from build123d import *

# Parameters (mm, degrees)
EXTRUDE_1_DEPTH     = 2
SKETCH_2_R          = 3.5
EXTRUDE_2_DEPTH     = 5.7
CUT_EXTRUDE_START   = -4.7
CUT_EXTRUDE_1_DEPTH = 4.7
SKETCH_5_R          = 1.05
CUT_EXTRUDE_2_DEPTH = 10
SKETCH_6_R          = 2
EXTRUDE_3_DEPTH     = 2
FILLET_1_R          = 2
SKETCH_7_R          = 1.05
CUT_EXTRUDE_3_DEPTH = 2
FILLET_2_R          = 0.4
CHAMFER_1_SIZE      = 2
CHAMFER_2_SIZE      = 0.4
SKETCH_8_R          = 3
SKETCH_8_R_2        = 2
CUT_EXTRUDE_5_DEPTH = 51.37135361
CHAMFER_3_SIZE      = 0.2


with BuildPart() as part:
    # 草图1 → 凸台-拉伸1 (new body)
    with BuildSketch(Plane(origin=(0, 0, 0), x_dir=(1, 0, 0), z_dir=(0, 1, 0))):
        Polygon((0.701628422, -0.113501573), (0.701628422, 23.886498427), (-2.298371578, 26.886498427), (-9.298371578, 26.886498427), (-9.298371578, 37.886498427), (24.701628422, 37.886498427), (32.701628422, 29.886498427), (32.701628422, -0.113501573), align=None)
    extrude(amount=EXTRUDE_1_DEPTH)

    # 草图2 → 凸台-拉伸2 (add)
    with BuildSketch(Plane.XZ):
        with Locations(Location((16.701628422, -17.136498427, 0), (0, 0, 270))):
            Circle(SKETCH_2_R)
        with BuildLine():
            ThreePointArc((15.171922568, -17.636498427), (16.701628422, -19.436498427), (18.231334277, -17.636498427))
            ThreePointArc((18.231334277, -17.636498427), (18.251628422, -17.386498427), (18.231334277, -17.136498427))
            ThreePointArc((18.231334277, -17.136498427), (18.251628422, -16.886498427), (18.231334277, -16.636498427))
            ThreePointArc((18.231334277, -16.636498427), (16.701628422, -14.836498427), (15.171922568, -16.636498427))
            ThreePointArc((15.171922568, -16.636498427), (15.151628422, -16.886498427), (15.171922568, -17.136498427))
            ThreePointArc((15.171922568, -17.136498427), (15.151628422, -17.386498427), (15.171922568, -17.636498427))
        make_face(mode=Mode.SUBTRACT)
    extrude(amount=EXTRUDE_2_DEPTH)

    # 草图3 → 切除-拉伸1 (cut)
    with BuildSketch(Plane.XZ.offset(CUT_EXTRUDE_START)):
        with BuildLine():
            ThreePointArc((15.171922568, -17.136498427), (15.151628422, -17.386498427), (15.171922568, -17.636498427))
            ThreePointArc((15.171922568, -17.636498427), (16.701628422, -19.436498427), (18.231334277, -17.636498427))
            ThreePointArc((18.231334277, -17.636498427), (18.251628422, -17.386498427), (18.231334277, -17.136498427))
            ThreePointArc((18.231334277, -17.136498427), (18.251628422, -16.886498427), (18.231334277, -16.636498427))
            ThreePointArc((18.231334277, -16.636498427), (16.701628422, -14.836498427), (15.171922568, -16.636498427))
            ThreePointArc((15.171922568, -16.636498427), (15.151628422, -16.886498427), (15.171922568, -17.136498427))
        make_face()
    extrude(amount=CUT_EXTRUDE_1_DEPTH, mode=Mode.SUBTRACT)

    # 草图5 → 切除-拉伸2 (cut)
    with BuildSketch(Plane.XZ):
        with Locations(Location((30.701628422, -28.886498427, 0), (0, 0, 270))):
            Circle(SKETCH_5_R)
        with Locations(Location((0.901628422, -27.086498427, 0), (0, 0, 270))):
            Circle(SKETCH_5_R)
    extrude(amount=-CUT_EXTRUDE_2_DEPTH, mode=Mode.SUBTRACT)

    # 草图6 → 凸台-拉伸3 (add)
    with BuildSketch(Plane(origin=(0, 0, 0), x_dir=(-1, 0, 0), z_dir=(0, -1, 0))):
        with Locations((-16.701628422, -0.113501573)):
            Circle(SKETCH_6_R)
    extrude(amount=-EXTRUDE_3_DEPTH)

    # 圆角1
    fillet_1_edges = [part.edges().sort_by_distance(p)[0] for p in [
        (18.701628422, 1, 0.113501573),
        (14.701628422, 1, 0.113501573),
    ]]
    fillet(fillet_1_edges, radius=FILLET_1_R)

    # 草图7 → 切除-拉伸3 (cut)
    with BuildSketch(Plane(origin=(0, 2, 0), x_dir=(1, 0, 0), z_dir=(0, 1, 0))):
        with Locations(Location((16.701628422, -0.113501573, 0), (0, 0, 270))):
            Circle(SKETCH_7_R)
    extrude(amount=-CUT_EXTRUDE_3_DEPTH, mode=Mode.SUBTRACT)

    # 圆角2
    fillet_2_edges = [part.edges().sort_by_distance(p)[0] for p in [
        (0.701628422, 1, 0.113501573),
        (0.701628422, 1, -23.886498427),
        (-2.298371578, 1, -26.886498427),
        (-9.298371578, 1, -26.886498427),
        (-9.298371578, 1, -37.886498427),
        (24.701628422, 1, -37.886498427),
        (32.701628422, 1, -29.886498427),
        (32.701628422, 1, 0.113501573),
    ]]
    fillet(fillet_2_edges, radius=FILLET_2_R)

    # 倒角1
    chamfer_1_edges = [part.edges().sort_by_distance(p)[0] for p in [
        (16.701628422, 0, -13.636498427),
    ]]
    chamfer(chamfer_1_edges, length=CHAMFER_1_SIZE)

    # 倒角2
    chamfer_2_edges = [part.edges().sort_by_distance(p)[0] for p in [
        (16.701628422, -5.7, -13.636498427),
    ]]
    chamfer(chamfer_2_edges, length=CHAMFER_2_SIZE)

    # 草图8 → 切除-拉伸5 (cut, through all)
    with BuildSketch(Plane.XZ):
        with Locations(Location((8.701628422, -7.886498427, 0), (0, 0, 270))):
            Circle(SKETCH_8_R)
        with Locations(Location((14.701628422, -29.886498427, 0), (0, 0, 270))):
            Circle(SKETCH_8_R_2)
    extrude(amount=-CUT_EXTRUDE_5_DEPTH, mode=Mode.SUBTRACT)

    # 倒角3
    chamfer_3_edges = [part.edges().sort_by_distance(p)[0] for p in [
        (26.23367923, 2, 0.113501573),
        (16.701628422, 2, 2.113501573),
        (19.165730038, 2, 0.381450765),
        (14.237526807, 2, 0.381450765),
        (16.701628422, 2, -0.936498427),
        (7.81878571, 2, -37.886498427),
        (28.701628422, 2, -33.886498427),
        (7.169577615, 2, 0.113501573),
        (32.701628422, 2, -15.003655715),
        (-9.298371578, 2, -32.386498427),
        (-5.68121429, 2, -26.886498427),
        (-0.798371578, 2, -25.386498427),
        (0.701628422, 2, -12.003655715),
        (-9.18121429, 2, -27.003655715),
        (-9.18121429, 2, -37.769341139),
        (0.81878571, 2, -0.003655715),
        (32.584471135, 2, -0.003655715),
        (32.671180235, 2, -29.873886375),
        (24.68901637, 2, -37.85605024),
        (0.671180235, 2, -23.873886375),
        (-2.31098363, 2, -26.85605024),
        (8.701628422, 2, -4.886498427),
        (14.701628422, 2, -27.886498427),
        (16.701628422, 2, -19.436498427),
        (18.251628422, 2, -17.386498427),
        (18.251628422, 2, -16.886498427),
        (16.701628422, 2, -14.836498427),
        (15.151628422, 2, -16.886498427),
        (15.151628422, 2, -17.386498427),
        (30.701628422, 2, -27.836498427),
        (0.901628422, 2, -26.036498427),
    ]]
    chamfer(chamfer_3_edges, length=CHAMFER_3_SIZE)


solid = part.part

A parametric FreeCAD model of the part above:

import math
import FreeCAD as App
import Part
import Sketcher
from FreeCAD import Vector
Q = App.Units.Quantity


def edges_at(feature, points):
    """Names of the edges that pass closest to the given points."""
    edges = feature.Shape.Edges
    near = lambda p: min(range(len(edges)), key=lambda i: edges[i].distToShape(Part.Vertex(*p))[0])
    return sorted({f"Edge{near(p) + 1}" for p in points})


def add_polygon(sketch, points):
    """Adds a closed chain of lines whose ends are joined by coincident constraints."""
    first, n = sketch.GeometryCount, len(points)
    for a, b in zip(points, points[1:] + points[:1]):
        sketch.addGeometry(Part.LineSegment(App.Vector(*a, 0), App.Vector(*b, 0)), False)
    for i in range(n):
        sketch.addConstraint(Sketcher.Constraint("Coincident", first + i, 2, first + (i + 1) % n, 1))

doc = App.newDocument("Part")
params = doc.addObject("Spreadsheet::Sheet", "Params")
for row, (alias, value) in enumerate([
    ("sketch1_width", "32 mm"),
    ("sketch1_width2", "34 mm"),
    ("sketch1_width3", "7 mm"),
    ("sketch1_height", "24 mm"),
    ("sketch1_height2", "30 mm"),
    ("pad1_length", "2 mm"),
    ("sketch2_diameter", "7 mm"),
    ("sketch2_radius", "1.55 mm"),
    ("pad2_length", "5.7 mm"),
    ("sketch3_radius", "1.55 mm"),
    ("pocket1_length", "4.7 mm"),
    ("sketch4_diameter", "2.1 mm"),
    ("pocket2_length", "10 mm"),
    ("sketch5_diameter", "4 mm"),
    ("pad3_length", "2 mm"),
    ("fillet_radius", "2 mm"),
    ("sketch6_diameter", "2.1 mm"),
    ("pocket3_length", "2 mm"),
    ("fillet2_radius", "0.4 mm"),
    ("chamfer_size", "2 mm"),
    ("chamfer2_size", "0.4 mm"),
    ("sketch7_diameter", "6 mm"),
    ("sketch7_diameter2", "4 mm"),
    ("chamfer3_size", "0.2 mm"),
], start=1):
    params.set(f"A{row}", alias)
    params.set(f"B{row}", "=" + value)
    params.setAlias(f"B{row}", alias)

body = doc.addObject("PartDesign::Body", "Body")

# Sketch on XZ plane
sketch1 = body.newObject("Sketcher::SketchObject", "Sketch")
sketch1.AttachmentSupport = (doc.getObject("XZ_Plane"), [""])
sketch1.MapMode = "FlatFace"
add_polygon(sketch1, [(0.7, -23.9), (0.7, 0.1), (32.7, 0.1), (32.7, -29.9), (24.7, -37.9), (-9.3, -37.9), (-9.3, -26.9), (-2.3, -26.9)])  # lines 0-7
sketch1.addConstraint(Sketcher.Constraint("Vertical", 0))
sketch1.addConstraint(Sketcher.Constraint("Horizontal", 1))
sketch1.addConstraint(Sketcher.Constraint("Vertical", 2))
sketch1.addConstraint(Sketcher.Constraint("Horizontal", 4))
sketch1.addConstraint(Sketcher.Constraint("Vertical", 5))
sketch1.addConstraint(Sketcher.Constraint("Horizontal", 6))
sketch1.addConstraint(Sketcher.Constraint("Parallel", 3, 7))
sketch1.addConstraint(Sketcher.Constraint("DistanceX", 1, 1, 1, 2, Q("32 mm")))
sketch1.addConstraint(Sketcher.Constraint("DistanceX", 4, 2, 4, 1, Q("34 mm")))
sketch1.addConstraint(Sketcher.Constraint("DistanceX", 6, 1, 6, 2, Q("7 mm")))
sketch1.addConstraint(Sketcher.Constraint("DistanceY", 0, 1, 0, 2, Q("24 mm")))
sketch1.addConstraint(Sketcher.Constraint("DistanceY", 2, 2, 2, 1, Q("30 mm")))
sketch1.addConstraint(Sketcher.Constraint("DistanceY", 5, 1, 5, 2, Q("11 mm")))
sketch1.addConstraint(Sketcher.Constraint("DistanceX", 3, 2, 2, 2, Q("8 mm")))
sketch1.addConstraint(Sketcher.Constraint("DistanceY", -1, 1, 0, 2, Q("0.113502 mm")))
sketch1.addConstraint(Sketcher.Constraint("DistanceX", -1, 1, 0, 2, Q("0.701628 mm")))
sketch1.setExpression("Constraints[15]", "Params.sketch1_width")
sketch1.setExpression("Constraints[16]", "Params.sketch1_width2")
sketch1.setExpression("Constraints[17]", "Params.sketch1_width3")
sketch1.setExpression("Constraints[18]", "Params.sketch1_height")
sketch1.setExpression("Constraints[19]", "Params.sketch1_height2")
pad1 = body.newObject("PartDesign::Pad", "Pad")
pad1.Profile = sketch1
pad1.setExpression("Length", "Params.pad1_length")
pad1.Reversed = True

# Sketch on XZ plane
sketch2 = body.newObject("Sketcher::SketchObject", "Sketch001")
sketch2.AttachmentSupport = (doc.getObject("XZ_Plane"), [""])
sketch2.MapMode = "FlatFace"
sketch2.addGeometry(Part.Circle(Vector(16.7, -17.1, 0), Vector(0, 0, 1), 3.5), False)
sketch2.addGeometry(Part.ArcOfCircle(Part.Circle(Vector(16.7, -17.9, 0), Vector(0, 0, 1), 1.6), math.radians(171), math.radians(369)), False)
sketch2.addGeometry(Part.ArcOfCircle(Part.Circle(Vector(16.7, -17.4, 0), Vector(0, 0, 1), 1.5), math.radians(170.72), math.radians(189.28)), False)
sketch2.addGeometry(Part.ArcOfCircle(Part.Circle(Vector(16.7, -16.9, 0), Vector(0, 0, 1), 1.5), math.radians(170.72), math.radians(189.28)), False)
sketch2.addGeometry(Part.ArcOfCircle(Part.Circle(Vector(16.7, -16.4, 0), Vector(0, 0, 1), 1.6), math.radians(-9), math.radians(189)), False)
sketch2.addGeometry(Part.ArcOfCircle(Part.Circle(Vector(16.7, -16.9, 0), Vector(0, 0, 1), 1.6), math.radians(-9.28), math.radians(9.28)), False)
sketch2.addGeometry(Part.ArcOfCircle(Part.Circle(Vector(16.7, -17.4, 0), Vector(0, 0, 1), 1.6), math.radians(-9.28), math.radians(9.28)), False)
sketch2.addConstraint(Sketcher.Constraint("Coincident", 1, 1, 2, 2))
sketch2.addConstraint(Sketcher.Constraint("Coincident", 2, 1, 3, 2))
sketch2.addConstraint(Sketcher.Constraint("Coincident", 3, 1, 4, 2))
sketch2.addConstraint(Sketcher.Constraint("Coincident", 4, 1, 5, 2))
sketch2.addConstraint(Sketcher.Constraint("Coincident", 5, 1, 6, 2))
sketch2.addConstraint(Sketcher.Constraint("Coincident", 6, 1, 1, 2))
sketch2.addConstraint(Sketcher.Constraint("Coincident", 5, 3, 3, 3))
sketch2.addConstraint(Sketcher.Constraint("Coincident", 6, 3, 2, 3))
sketch2.addConstraint(Sketcher.Constraint("Equal", 1, 2))
sketch2.addConstraint(Sketcher.Constraint("Equal", 2, 3))
sketch2.addConstraint(Sketcher.Constraint("Equal", 3, 4))
sketch2.addConstraint(Sketcher.Constraint("Equal", 4, 5))
sketch2.addConstraint(Sketcher.Constraint("Equal", 5, 6))
sketch2.addConstraint(Sketcher.Constraint("Horizontal", 0, 3, 2, 1))
sketch2.addConstraint(Sketcher.Constraint("Horizontal", 3, 1, 4, 1))
sketch2.addConstraint(Sketcher.Constraint("Horizontal", 2, 1, 5, 1))
sketch2.addConstraint(Sketcher.Constraint("Horizontal", 1, 1, 6, 1))
sketch2.addConstraint(Sketcher.Constraint("Vertical", 0, 3, 1, 3))
sketch2.addConstraint(Sketcher.Constraint("Vertical", 1, 1, 2, 1))
sketch2.addConstraint(Sketcher.Constraint("Vertical", 2, 1, 3, 1))
sketch2.addConstraint(Sketcher.Constraint("Diameter", 0, Q("7 mm")))
sketch2.addConstraint(Sketcher.Constraint("Radius", 1, Q("1.55 mm")))
sketch2.addConstraint(Sketcher.Constraint("DistanceY", 1, 3, 3, 3, Q("1 mm")))
sketch2.addConstraint(Sketcher.Constraint("DistanceY", 0, 3, -1, 1, Q("17.136498 mm")))
sketch2.addConstraint(Sketcher.Constraint("DistanceX", -1, 1, 0, 3, Q("16.701628 mm")))
sketch2.setExpression("Constraints[20]", "Params.sketch2_diameter")
sketch2.setExpression("Constraints[21]", "Params.sketch2_radius")
pad2 = body.newObject("PartDesign::Pad", "Pad001")
pad2.Profile = sketch2
pad2.setExpression("Length", "Params.pad2_length")

# Sketch on XZ plane
sketch3 = body.newObject("Sketcher::SketchObject", "Sketch002")
sketch3.AttachmentSupport = (doc.getObject("XZ_Plane"), [""])
sketch3.MapMode = "FlatFace"
sketch3.AttachmentOffset = App.Placement(Vector(0, 0, -4.7), App.Rotation())
sketch3.addGeometry(Part.ArcOfCircle(Part.Circle(Vector(16.7, -17.4, 0), Vector(0, 0, 1), 1.5), math.radians(170.72), math.radians(189.28)), False)
sketch3.addGeometry(Part.ArcOfCircle(Part.Circle(Vector(16.7, -17.9, 0), Vector(0, 0, 1), 1.6), math.radians(171), math.radians(369)), False)
sketch3.addGeometry(Part.ArcOfCircle(Part.Circle(Vector(16.7, -17.4, 0), Vector(0, 0, 1), 1.6), math.radians(-9.28), math.radians(9.28)), False)
sketch3.addGeometry(Part.ArcOfCircle(Part.Circle(Vector(16.7, -16.9, 0), Vector(0, 0, 1), 1.6), math.radians(-9.28), math.radians(9.28)), False)
sketch3.addGeometry(Part.ArcOfCircle(Part.Circle(Vector(16.7, -16.4, 0), Vector(0, 0, 1), 1.6), math.radians(-9), math.radians(189)), False)
sketch3.addGeometry(Part.ArcOfCircle(Part.Circle(Vector(16.7, -16.9, 0), Vector(0, 0, 1), 1.5), math.radians(170.72), math.radians(189.28)), False)
sketch3.addConstraint(Sketcher.Constraint("Coincident", 0, 2, 1, 1))
sketch3.addConstraint(Sketcher.Constraint("Coincident", 1, 2, 2, 1))
sketch3.addConstraint(Sketcher.Constraint("Coincident", 2, 2, 3, 1))
sketch3.addConstraint(Sketcher.Constraint("Coincident", 3, 2, 4, 1))
sketch3.addConstraint(Sketcher.Constraint("Coincident", 4, 2, 5, 1))
sketch3.addConstraint(Sketcher.Constraint("Coincident", 5, 2, 0, 1))
sketch3.addConstraint(Sketcher.Constraint("Coincident", 2, 3, 0, 3))
sketch3.addConstraint(Sketcher.Constraint("Coincident", 5, 3, 3, 3))
sketch3.addConstraint(Sketcher.Constraint("Equal", 0, 1))
sketch3.addConstraint(Sketcher.Constraint("Equal", 1, 2))
sketch3.addConstraint(Sketcher.Constraint("Equal", 2, 3))
sketch3.addConstraint(Sketcher.Constraint("Equal", 3, 4))
sketch3.addConstraint(Sketcher.Constraint("Equal", 4, 5))
sketch3.addConstraint(Sketcher.Constraint("Horizontal", 0, 2, 1, 2))
sketch3.addConstraint(Sketcher.Constraint("Horizontal", 3, 2, 4, 2))
sketch3.addConstraint(Sketcher.Constraint("Horizontal", 2, 2, 5, 2))
sketch3.addConstraint(Sketcher.Constraint("Vertical", 1, 2, 2, 2))
sketch3.addConstraint(Sketcher.Constraint("Vertical", 2, 2, 3, 2))
sketch3.addConstraint(Sketcher.Constraint("Radius", 0, Q("1.55 mm")))
sketch3.addConstraint(Sketcher.Constraint("DistanceY", 1, 3, 3, 3, Q("1 mm")))
sketch3.addConstraint(Sketcher.Constraint("DistanceY", 0, 3, -1, 1, Q("17.386498 mm")))
sketch3.addConstraint(Sketcher.Constraint("DistanceX", -1, 1, 0, 3, Q("16.701628 mm")))
sketch3.setExpression("Constraints[18]", "Params.sketch3_radius")
pocket1 = body.newObject("PartDesign::Pocket", "Pocket")
pocket1.Profile = sketch3
pocket1.setExpression("Length", "Params.pocket1_length")
pocket1.Reversed = True

# Sketch on XZ plane
sketch4 = body.newObject("Sketcher::SketchObject", "Sketch003")
sketch4.AttachmentSupport = (doc.getObject("XZ_Plane"), [""])
sketch4.MapMode = "FlatFace"
sketch4.addGeometry(Part.Circle(Vector(30.7, -28.9, 0), Vector(0, 0, 1), 1.1), False)
sketch4.addGeometry(Part.Circle(Vector(0.9, -27.1, 0), Vector(0, 0, 1), 1.1), False)
sketch4.addConstraint(Sketcher.Constraint("Equal", 0, 1))
sketch4.addConstraint(Sketcher.Constraint("Diameter", 0, Q("2.1 mm")))
sketch4.addConstraint(Sketcher.Constraint("DistanceX", 1, 3, 0, 3, Q("29.8 mm")))
sketch4.addConstraint(Sketcher.Constraint("DistanceY", 0, 3, 1, 3, Q("1.8 mm")))
sketch4.addConstraint(Sketcher.Constraint("DistanceY", 0, 3, -1, 1, Q("28.886498 mm")))
sketch4.addConstraint(Sketcher.Constraint("DistanceX", -1, 1, 0, 3, Q("30.701628 mm")))
sketch4.setExpression("Constraints[1]", "Params.sketch4_diameter")
pocket2 = body.newObject("PartDesign::Pocket", "Pocket001")
pocket2.Profile = sketch4
pocket2.setExpression("Length", "Params.pocket2_length")

# Sketch on XZ plane
sketch5 = body.newObject("Sketcher::SketchObject", "Sketch004")
sketch5.AttachmentSupport = (doc.getObject("XZ_Plane"), [""])
sketch5.MapMode = "FlatFace"
sketch5.addGeometry(Part.Circle(Vector(16.7, 0.1, 0), Vector(0, 0, 1), 2), False)
sketch5.addConstraint(Sketcher.Constraint("Diameter", 0, Q("4 mm")))
sketch5.addConstraint(Sketcher.Constraint("DistanceY", -1, 1, 0, 3, Q("0.113502 mm")))
sketch5.addConstraint(Sketcher.Constraint("DistanceX", -1, 1, 0, 3, Q("16.701628 mm")))
sketch5.setExpression("Constraints[0]", "Params.sketch5_diameter")
pad3 = body.newObject("PartDesign::Pad", "Pad002")
pad3.Profile = sketch5
pad3.setExpression("Length", "Params.pad3_length")
pad3.Reversed = True
doc.recompute()

fillet = body.newObject("PartDesign::Fillet", "Fillet")
fillet.Base = (pad3, edges_at(pad3, [(18.702, 1, 0.114), (14.702, 1, 0.114)]))
fillet.setExpression("Radius", "Params.fillet_radius")

# Sketch on XZ plane
sketch6 = body.newObject("Sketcher::SketchObject", "Sketch005")
sketch6.AttachmentSupport = (doc.getObject("XZ_Plane"), [""])
sketch6.MapMode = "FlatFace"
sketch6.AttachmentOffset = App.Placement(Vector(0, 0, -2), App.Rotation())
sketch6.addGeometry(Part.Circle(Vector(16.7, 0.1, 0), Vector(0, 0, 1), 1.1), False)
sketch6.addConstraint(Sketcher.Constraint("Diameter", 0, Q("2.1 mm")))
sketch6.addConstraint(Sketcher.Constraint("DistanceY", -1, 1, 0, 3, Q("0.113502 mm")))
sketch6.addConstraint(Sketcher.Constraint("DistanceX", -1, 1, 0, 3, Q("16.701628 mm")))
sketch6.setExpression("Constraints[0]", "Params.sketch6_diameter")
pocket3 = body.newObject("PartDesign::Pocket", "Pocket002")
pocket3.Profile = sketch6
pocket3.setExpression("Length", "Params.pocket3_length")
pocket3.Reversed = True
doc.recompute()

fillet2 = body.newObject("PartDesign::Fillet", "Fillet001")
fillet2.Base = (pocket3, edges_at(pocket3, [
    (0.702, 1, 0.114),
    (0.702, 1, -23.886),
    (-2.298, 1, -26.886),
    (-9.298, 1, -26.886),
    (-9.298, 1, -37.886),
    (24.702, 1, -37.886),
    (32.702, 1, -29.886),
    (32.702, 1, 0.114),
]))
fillet2.setExpression("Radius", "Params.fillet2_radius")
doc.recompute()

chamfer = body.newObject("PartDesign::Chamfer", "Chamfer")
chamfer.Base = (fillet2, edges_at(fillet2, [(16.702, 0, -13.636)]))
chamfer.setExpression("Size", "Params.chamfer_size")
doc.recompute()

chamfer2 = body.newObject("PartDesign::Chamfer", "Chamfer001")
chamfer2.Base = (chamfer, edges_at(chamfer, [(16.702, -5.7, -13.636)]))
chamfer2.setExpression("Size", "Params.chamfer2_size")

# Sketch on XZ plane
sketch7 = body.newObject("Sketcher::SketchObject", "Sketch006")
sketch7.AttachmentSupport = (doc.getObject("XZ_Plane"), [""])
sketch7.MapMode = "FlatFace"
sketch7.addGeometry(Part.Circle(Vector(8.7, -7.9, 0), Vector(0, 0, 1), 3), False)
sketch7.addGeometry(Part.Circle(Vector(14.7, -29.9, 0), Vector(0, 0, 1), 2), False)
sketch7.addConstraint(Sketcher.Constraint("Diameter", 0, Q("6 mm")))
sketch7.addConstraint(Sketcher.Constraint("Diameter", 1, Q("4 mm")))
sketch7.addConstraint(Sketcher.Constraint("DistanceX", 0, 3, 1, 3, Q("6 mm")))
sketch7.addConstraint(Sketcher.Constraint("DistanceY", 1, 3, 0, 3, Q("22 mm")))
sketch7.addConstraint(Sketcher.Constraint("DistanceY", 0, 3, -1, 1, Q("7.886498 mm")))
sketch7.addConstraint(Sketcher.Constraint("DistanceX", -1, 1, 0, 3, Q("8.701628 mm")))
sketch7.setExpression("Constraints[0]", "Params.sketch7_diameter")
sketch7.setExpression("Constraints[1]", "Params.sketch7_diameter2")
pocket4 = body.newObject("PartDesign::Pocket", "Pocket003")
pocket4.Profile = sketch7
pocket4.Type = "ThroughAll"
doc.recompute()

chamfer3 = body.newObject("PartDesign::Chamfer", "Chamfer002")
chamfer3.Base = (pocket4, edges_at(pocket4, [
    (26.234, 2, 0.114),
    (16.702, 2, 2.114),
    (19.166, 2, 0.381),
    (14.238, 2, 0.381),
    (16.702, 2, -0.936),
    (7.819, 2, -37.886),
    (28.702, 2, -33.886),
    (7.17, 2, 0.114),
    (32.702, 2, -15.004),
    (-9.298, 2, -32.386),
    (-5.681, 2, -26.886),
    (-0.798, 2, -25.386),
    (0.702, 2, -12.004),
    (-9.181, 2, -27.004),
    (-9.181, 2, -37.769),
    (0.819, 2, -0.004),
    (32.584, 2, -0.004),
    (32.671, 2, -29.874),
    (24.689, 2, -37.856),
    (0.671, 2, -23.874),
    (-2.311, 2, -26.856),
    (8.702, 2, -4.886),
    (14.702, 2, -27.886),
    (16.702, 2, -19.436),
    (18.252, 2, -17.386),
    (18.252, 2, -16.886),
    (16.702, 2, -14.836),
    (15.152, 2, -16.886),
    (15.152, 2, -17.386),
    (30.702, 2, -27.836),
    (0.902, 2, -26.036),
]))
chamfer3.setExpression("Size", "Params.chamfer3_size")

doc.recompute()
